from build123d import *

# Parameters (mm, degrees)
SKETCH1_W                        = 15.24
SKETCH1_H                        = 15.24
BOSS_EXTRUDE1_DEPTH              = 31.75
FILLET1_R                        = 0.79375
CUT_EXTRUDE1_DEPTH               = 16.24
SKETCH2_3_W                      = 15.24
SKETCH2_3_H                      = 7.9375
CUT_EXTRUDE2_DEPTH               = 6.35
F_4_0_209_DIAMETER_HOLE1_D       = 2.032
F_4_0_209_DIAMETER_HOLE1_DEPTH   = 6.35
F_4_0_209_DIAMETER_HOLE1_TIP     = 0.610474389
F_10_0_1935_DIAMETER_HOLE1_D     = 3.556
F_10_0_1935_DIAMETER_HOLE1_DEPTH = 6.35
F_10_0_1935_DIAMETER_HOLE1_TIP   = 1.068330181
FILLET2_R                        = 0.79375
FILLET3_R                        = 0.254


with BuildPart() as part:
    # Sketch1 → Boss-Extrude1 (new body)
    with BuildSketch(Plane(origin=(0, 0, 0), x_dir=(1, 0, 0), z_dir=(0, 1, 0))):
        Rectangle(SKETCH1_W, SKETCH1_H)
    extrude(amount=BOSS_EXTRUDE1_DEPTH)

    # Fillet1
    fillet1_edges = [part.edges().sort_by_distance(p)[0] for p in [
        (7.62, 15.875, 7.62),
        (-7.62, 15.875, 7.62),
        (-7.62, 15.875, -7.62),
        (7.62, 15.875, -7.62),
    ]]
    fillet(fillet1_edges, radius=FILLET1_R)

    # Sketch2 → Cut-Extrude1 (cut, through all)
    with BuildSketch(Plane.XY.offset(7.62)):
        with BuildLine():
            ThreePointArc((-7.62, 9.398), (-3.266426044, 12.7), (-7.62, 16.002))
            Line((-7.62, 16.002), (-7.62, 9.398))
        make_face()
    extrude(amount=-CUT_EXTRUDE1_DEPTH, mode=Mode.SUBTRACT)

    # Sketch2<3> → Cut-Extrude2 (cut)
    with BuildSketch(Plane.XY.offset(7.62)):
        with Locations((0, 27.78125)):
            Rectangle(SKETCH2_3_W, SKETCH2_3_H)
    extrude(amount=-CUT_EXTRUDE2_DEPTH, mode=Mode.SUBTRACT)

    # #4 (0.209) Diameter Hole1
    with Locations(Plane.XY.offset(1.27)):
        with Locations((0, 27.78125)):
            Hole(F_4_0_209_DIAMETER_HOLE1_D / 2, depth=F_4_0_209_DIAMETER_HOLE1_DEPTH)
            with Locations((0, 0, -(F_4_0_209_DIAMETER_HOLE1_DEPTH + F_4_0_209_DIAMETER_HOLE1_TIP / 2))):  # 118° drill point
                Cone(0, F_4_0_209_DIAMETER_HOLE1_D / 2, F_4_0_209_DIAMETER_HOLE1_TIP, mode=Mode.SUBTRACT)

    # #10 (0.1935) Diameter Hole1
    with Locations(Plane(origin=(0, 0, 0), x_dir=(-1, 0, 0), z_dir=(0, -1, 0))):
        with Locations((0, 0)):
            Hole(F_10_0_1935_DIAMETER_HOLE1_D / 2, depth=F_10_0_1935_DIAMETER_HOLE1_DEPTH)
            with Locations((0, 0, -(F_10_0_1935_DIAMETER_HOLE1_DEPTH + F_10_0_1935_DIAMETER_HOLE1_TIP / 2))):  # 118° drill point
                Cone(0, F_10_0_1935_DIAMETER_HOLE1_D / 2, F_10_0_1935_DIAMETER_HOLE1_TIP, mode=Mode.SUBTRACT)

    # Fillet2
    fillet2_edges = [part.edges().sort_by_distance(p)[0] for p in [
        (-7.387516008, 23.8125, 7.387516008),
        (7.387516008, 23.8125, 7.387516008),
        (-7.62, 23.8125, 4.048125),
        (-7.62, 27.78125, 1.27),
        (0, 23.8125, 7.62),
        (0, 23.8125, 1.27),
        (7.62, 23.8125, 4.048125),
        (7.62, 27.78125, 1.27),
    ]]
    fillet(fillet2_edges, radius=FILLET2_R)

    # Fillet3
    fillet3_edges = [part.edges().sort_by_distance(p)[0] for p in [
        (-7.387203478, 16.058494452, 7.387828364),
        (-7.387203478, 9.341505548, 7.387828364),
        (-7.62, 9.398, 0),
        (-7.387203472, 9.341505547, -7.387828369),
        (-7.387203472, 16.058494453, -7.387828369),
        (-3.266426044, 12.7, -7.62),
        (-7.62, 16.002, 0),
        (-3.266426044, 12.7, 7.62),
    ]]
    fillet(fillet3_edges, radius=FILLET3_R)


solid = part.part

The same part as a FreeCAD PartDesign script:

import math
import FreeCAD as App
import Part
import Sketcher
Q = App.Units.Quantity


def edges_at(feature, points):
    """Names of the edges that pass closest to the given points."""
    edges = feature.Shape.Edges
    near = lambda p: min(range(len(edges)), key=lambda i: edges[i].distToShape(Part.Vertex(*p))[0])
    return sorted({f"Edge{near(p) + 1}" for p in points})


def add_polygon(sketch, points):
    """Adds a closed chain of lines whose ends are joined by coincident constraints."""
    first, n = sketch.GeometryCount, len(points)
    for a, b in zip(points, points[1:] + points[:1]):
        sketch.addGeometry(Part.LineSegment(App.Vector(*a, 0), App.Vector(*b, 0)), False)
    for i in range(n):
        sketch.addConstraint(Sketcher.Constraint("Coincident", first + i, 2, first + (i + 1) % n, 1))

doc = App.newDocument("Part")
body = doc.addObject("PartDesign::Body", "Body")

sketch1 = doc.addObject("Sketcher::SketchObject", "Sketch")
body.addObject(sketch1)
sketch1.AttachmentSupport = (doc.XZ_Plane, [""])
sketch1.MapMode = "FlatFace"
add_polygon(sketch1, [(-7.62, -7.62), (-7.62, 7.62), (7.62, 7.62), (7.62, -7.62)])
sketch1.addConstraint(Sketcher.Constraint("Vertical", 0))
sketch1.addConstraint(Sketcher.Constraint("Horizontal", 1))
sketch1.addConstraint(Sketcher.Constraint("Vertical", 2))
sketch1.addConstraint(Sketcher.Constraint("Horizontal", 3))
sketch1.addConstraint(Sketcher.Constraint("Symmetric", 0, 2, 2, 2, -1, 1))
sketch1.addConstraint(Sketcher.Constraint("Equal", 3, 0))
sketch1.addConstraint(Sketcher.Constraint("DistanceX", 1, 1, 1, 2, Q("0.6 in")))
pad1 = doc.addObject("PartDesign::Pad", "Pad")
body.addObject(pad1)
pad1.Profile = sketch1
pad1.Length = Q("1.25 in")
pad1.Reversed = True
doc.recompute()

fillet = doc.addObject("PartDesign::Fillet", "Fillet")
body.addObject(fillet)
fillet.Base = (pad1, edges_at(pad1, [
    (7.62, 15.875, 7.62),
    (-7.62, 15.875, 7.62),
    (-7.62, 15.875, -7.62),
    (7.62, 15.875, -7.62),
]))
fillet.Radius = Q("0.03125 in")

sketch2 = doc.addObject("Sketcher::SketchObject", "Sketch001")
body.addObject(sketch2)
sketch2.AttachmentSupport = (doc.XY_Plane, [""])
sketch2.MapMode = "FlatFace"
sketch2.AttachmentOffset = App.Placement(App.Vector(0, 0, 0.3 * 25.4), App.Rotation())
sketch2.addGeometry(Part.ArcOfCircle(Part.Circle(App.Vector(-6.695426, 12.7, 0), App.Vector(0, 0, 1), 3.429), math.radians(-105.642471), math.radians(105.642471)), False)
sketch2.addGeometry(Part.LineSegment(App.Vector(-7.62, 16.002, 0), App.Vector(-7.62, 9.398, 0)), False)
sketch2.addConstraint(Sketcher.Constraint("Coincident", 0, 1, 1, 2))
sketch2.addConstraint(Sketcher.Constraint("Coincident", 1, 1, 0, 2))
sketch2.addConstraint(Sketcher.Constraint("Vertical", 1))
sketch2.addConstraint(Sketcher.Constraint("Radius", 0, Q("0.135 in")))
sketch2.addConstraint(Sketcher.Constraint("DistanceY", 1, 2, 1, 1, Q("0.26 in")))
sketch2.addConstraint(Sketcher.Constraint("DistanceY", -1, 1, 0, 3, Q("0.5 in")))
sketch2.addConstraint(Sketcher.Constraint("DistanceX", 0, 1, -1, 1, Q("0.3 in")))
pocket1 = doc.addObject("PartDesign::Pocket", "Pocket")
body.addObject(pocket1)
pocket1.Profile = sketch2
pocket1.Type = "ThroughAll"

sketch3 = doc.addObject("Sketcher::SketchObject", "Sketch002")
body.addObject(sketch3)
sketch3.AttachmentSupport = (doc.XY_Plane, [""])
sketch3.MapMode = "FlatFace"
sketch3.AttachmentOffset = App.Placement(App.Vector(0, 0, 0.3 * 25.4), App.Rotation())
add_polygon(sketch3, [(-7.62, 31.75), (-7.62, 23.8125), (7.62, 23.8125), (7.62, 31.75)])
sketch3.addConstraint(Sketcher.Constraint("Vertical", 0))
sketch3.addConstraint(Sketcher.Constraint("Horizontal", 1))
sketch3.addConstraint(Sketcher.Constraint("Vertical", 2))
sketch3.addConstraint(Sketcher.Constraint("Horizontal", 3))
sketch3.addConstraint(Sketcher.Constraint("DistanceX", 1, 1, 1, 2, Q("0.6 in")))
sketch3.addConstraint(Sketcher.Constraint("DistanceX", 0, 2, -1, 1, Q("0.3 in")))
sketch3.addConstraint(Sketcher.Constraint("DistanceY", 0, 2, 0, 1, Q("0.3125 in")))
sketch3.addConstraint(Sketcher.Constraint("DistanceY", -1, 1, 2, 2, Q("1.25 in")))
pocket2 = doc.addObject("PartDesign::Pocket", "Pocket001")
body.addObject(pocket2)
pocket2.Profile = sketch3
pocket2.Length = Q("0.25 in")

sketch4 = doc.addObject("Sketcher::SketchObject", "Sketch003")
body.addObject(sketch4)
sketch4.AttachmentSupport = (doc.XY_Plane, [""])
sketch4.MapMode = "FlatFace"
sketch4.AttachmentOffset = App.Placement(App.Vector(0, 0, 0.05 * 25.4), App.Rotation())
sketch4.addGeometry(Part.Circle(App.Vector(0, 27.78125, 0), App.Vector(0, 0, 1), 1.016), False)
sketch4.addConstraint(Sketcher.Constraint("PointOnObject", 0, 3, -2))
sketch4.addConstraint(Sketcher.Constraint("Diameter", 0, Q("0.08 in")))
sketch4.addConstraint(Sketcher.Constraint("DistanceY", -1, 1, 0, 3, Q("1.09375 in")))
doc.recompute()
hole = doc.addObject("PartDesign::Hole", "Hole")
body.addObject(hole)
hole.Profile = sketch4
hole.ThreadType = "None"
hole.Diameter = Q("0.08 in")
hole.DepthType = "Dimension"
hole.Depth = Q("0.25 in")
hole.DrillPoint = "Angled"
hole.DrillPointAngle = 118

sketch5 = doc.addObject("Sketcher::SketchObject", "Sketch004")
body.addObject(sketch5)
sketch5.AttachmentSupport = (doc.XZ_Plane, [""])
sketch5.MapMode = "FlatFace"
sketch5.addGeometry(Part.Circle(App.Vector(0, 0, 0), App.Vector(0, 0, 1), 1.778), False)
sketch5.addConstraint(Sketcher.Constraint("Coincident", 0, 3, -1, 1))
sketch5.addConstraint(Sketcher.Constraint("Diameter", 0, Q("0.14 in")))
doc.recompute()
hole2 = doc.addObject("PartDesign::Hole", "Hole001")
body.addObject(hole2)
hole2.Profile = sketch5
hole2.ThreadType = "None"
hole2.Diameter = Q("0.14 in")
hole2.DepthType = "Dimension"
hole2.Depth = Q("0.25 in")
hole2.DrillPoint = "Angled"
hole2.DrillPointAngle = 118
doc.recompute()

fillet2 = doc.addObject("PartDesign::Fillet", "Fillet001")
body.addObject(fillet2)
fillet2.Base = (hole2, edges_at(hole2, [
    (-7.388, 23.812, 7.388),
    (7.388, 23.812, 7.388),
    (-7.62, 23.812, 4.048),
    (-7.62, 27.781, 1.27),
    (0, 23.812, 7.62),
    (0, 23.812, 1.27),
    (7.62, 23.812, 4.048),
    (7.62, 27.781, 1.27),
]))
fillet2.Radius = Q("0.03125 in")
doc.recompute()

fillet3 = doc.addObject("PartDesign::Fillet", "Fillet002")
body.addObject(fillet3)
fillet3.Base = (fillet2, edges_at(fillet2, [
    (-7.387, 16.058, 7.388),
    (-7.387, 9.342, 7.388),
    (-7.62, 9.398, 0),
    (-7.387, 9.342, -7.388),
    (-7.387, 16.058, -7.388),
    (-3.266, 12.7, -7.62),
    (-7.62, 16.002, 0),
    (-3.266, 12.7, 7.62),
]))
fillet3.Radius = Q("0.01 in")

doc.recompute()
